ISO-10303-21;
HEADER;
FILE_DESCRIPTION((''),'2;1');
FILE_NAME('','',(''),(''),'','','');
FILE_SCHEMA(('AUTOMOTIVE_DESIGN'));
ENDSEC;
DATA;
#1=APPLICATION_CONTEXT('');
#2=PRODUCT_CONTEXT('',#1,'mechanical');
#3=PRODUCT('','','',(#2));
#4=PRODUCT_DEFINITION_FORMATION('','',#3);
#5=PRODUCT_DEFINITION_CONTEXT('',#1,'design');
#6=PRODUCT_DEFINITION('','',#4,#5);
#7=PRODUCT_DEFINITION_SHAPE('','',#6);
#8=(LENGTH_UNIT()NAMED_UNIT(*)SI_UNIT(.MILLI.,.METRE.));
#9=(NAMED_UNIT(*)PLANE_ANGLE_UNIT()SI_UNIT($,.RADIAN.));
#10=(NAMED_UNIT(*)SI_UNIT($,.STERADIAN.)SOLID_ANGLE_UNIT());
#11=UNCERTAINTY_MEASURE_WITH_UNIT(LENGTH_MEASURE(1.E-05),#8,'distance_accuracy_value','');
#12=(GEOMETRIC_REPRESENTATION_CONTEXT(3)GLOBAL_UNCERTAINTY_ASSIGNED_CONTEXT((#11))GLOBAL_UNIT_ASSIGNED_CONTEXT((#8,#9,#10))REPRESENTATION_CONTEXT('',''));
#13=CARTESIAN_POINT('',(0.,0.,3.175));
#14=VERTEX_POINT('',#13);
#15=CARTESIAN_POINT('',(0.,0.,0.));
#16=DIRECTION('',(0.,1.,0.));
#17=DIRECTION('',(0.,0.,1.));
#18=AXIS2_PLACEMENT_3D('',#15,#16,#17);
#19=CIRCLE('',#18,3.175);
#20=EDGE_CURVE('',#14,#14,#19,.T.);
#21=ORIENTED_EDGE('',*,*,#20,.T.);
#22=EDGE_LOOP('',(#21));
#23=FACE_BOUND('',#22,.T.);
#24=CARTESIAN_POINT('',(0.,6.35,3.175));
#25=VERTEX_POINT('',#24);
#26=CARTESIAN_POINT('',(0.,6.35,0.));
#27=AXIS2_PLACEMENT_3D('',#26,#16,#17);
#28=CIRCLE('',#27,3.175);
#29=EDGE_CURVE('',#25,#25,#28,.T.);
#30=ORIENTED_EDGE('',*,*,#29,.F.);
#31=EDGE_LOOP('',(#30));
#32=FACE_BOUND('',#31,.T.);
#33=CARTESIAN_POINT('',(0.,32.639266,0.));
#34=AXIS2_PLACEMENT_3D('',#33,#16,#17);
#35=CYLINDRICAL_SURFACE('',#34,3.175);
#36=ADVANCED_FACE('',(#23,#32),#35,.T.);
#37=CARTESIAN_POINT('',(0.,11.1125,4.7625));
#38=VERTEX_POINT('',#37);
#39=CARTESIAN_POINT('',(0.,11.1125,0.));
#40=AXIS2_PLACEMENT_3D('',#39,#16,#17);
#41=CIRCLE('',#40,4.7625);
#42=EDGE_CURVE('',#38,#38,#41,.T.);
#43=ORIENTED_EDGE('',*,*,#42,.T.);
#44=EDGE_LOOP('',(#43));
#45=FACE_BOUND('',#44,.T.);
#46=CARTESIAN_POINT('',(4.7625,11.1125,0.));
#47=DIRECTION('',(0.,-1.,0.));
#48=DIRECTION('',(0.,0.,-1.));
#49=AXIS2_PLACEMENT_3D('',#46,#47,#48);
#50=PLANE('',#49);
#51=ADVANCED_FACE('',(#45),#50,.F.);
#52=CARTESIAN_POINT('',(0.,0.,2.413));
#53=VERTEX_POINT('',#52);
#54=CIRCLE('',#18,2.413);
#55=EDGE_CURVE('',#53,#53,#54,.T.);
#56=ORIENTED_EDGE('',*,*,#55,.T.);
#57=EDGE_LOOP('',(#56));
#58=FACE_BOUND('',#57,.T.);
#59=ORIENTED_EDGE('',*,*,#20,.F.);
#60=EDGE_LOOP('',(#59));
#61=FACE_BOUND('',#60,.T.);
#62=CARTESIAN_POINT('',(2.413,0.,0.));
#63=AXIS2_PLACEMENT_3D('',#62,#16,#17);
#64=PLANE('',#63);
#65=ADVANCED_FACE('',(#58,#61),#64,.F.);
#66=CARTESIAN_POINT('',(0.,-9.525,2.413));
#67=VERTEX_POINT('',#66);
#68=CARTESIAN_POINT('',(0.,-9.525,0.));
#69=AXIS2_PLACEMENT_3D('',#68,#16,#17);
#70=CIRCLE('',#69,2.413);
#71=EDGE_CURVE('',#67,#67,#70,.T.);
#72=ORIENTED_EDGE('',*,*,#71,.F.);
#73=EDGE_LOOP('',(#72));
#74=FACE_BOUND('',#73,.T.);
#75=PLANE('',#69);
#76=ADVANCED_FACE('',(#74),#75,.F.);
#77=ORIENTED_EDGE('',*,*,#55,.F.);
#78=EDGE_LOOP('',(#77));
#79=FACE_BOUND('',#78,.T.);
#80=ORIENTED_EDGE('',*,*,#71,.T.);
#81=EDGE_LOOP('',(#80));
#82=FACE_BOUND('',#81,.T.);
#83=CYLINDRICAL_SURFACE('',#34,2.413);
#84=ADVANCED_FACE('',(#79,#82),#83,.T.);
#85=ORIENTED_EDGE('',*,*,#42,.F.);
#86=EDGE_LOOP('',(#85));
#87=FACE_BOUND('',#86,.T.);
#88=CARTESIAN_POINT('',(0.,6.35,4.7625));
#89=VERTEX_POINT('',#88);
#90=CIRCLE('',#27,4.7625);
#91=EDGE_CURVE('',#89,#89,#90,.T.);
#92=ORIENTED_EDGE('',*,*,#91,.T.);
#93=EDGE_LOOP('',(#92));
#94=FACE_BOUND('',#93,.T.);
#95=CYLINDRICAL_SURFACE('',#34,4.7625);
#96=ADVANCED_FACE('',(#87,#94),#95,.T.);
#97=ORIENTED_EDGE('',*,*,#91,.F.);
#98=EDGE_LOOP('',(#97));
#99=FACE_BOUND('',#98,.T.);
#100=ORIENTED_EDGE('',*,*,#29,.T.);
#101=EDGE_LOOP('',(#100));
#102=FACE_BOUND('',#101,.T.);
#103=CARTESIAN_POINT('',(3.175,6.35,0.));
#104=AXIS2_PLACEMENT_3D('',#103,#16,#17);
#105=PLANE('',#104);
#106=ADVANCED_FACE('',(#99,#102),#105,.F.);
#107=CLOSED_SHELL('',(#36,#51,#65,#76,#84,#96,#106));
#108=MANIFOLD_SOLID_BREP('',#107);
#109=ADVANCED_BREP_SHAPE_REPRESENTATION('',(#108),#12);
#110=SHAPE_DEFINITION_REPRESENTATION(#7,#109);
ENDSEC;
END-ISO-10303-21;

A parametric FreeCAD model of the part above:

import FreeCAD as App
import Part
import Sketcher
from FreeCAD import Vector
Q = App.Units.Quantity


def add_polygon(sketch, points):
    """Adds a closed chain of lines whose ends are joined by coincident constraints."""
    first, n = sketch.GeometryCount, len(points)
    for a, b in zip(points, points[1:] + points[:1]):
        sketch.addGeometry(Part.LineSegment(App.Vector(*a, 0), App.Vector(*b, 0)), False)
    for i in range(n):
        sketch.addConstraint(Sketcher.Constraint("Coincident", first + i, 2, first + (i + 1) % n, 1))

doc = App.newDocument("Part")
params = doc.addObject("Spreadsheet::Sheet", "Params")
for row, (alias, value) in enumerate([
    ("sketch1_width", "0.03 in"),
    ("sketch1_height", "0.25 in"),
    ("sketch1_width2", "0.095 in"),
    ("sketch1_width3", "0.0625 in"),
    ("sketch1_height2", "0.375 in"),
    ("revolution_angle", "360 deg"),
], start=1):
    params.set(f"A{row}", alias)
    params.set(f"B{row}", "=" + value)
    params.setAlias(f"B{row}", alias)

body = doc.addObject("PartDesign::Body", "Body")

# Sketch on XY plane
sketch1 = body.newObject("Sketcher::SketchObject", "Sketch")
sketch1.AttachmentSupport = (doc.getObject("XY_Plane"), [""])
sketch1.MapMode = "FlatFace"
add_polygon(sketch1, [(0, -9.525), (2.413, -9.525), (2.413, 0), (3.175, 0), (3.175, 6.35), (4.7625, 6.35), (4.7625, 11.1125), (0, 11.1125)])  # lines 0-7
sketch1.addConstraint([
    Sketcher.Constraint("Horizontal", 0),
    Sketcher.Constraint("Vertical", 1),
    Sketcher.Constraint("Horizontal", 2),
    Sketcher.Constraint("Vertical", 3),
    Sketcher.Constraint("Horizontal", 4),
    Sketcher.Constraint("Vertical", 5),
    Sketcher.Constraint("Horizontal", 6),
    Sketcher.Constraint("Vertical", 7),
    Sketcher.Constraint("PointOnObject", 1, 2, -1),
    Sketcher.Constraint("PointOnObject", 6, 2, -2),
    Sketcher.Constraint("Equal", 6, 5),
    Sketcher.Constraint("DistanceX", 2, 1, 2, 2, Q("0.03 in")),
    Sketcher.Constraint("DistanceY", 3, 1, 3, 2, Q("0.25 in")),
    Sketcher.Constraint("DistanceX", 0, 1, 0, 2, Q("0.095 in")),
    Sketcher.Constraint("DistanceX", 4, 1, 4, 2, Q("0.0625 in")),
    Sketcher.Constraint("DistanceY", 1, 1, 1, 2, Q("0.375 in")),
])
sketch1.setExpression("Constraints[19]", "Params.sketch1_width")
sketch1.setExpression("Constraints[20]", "Params.sketch1_height")
sketch1.setExpression("Constraints[21]", "Params.sketch1_width2")
sketch1.setExpression("Constraints[22]", "Params.sketch1_width3")
sketch1.setExpression("Constraints[23]", "Params.sketch1_height2")
revolution = body.newObject("PartDesign::Revolution", "Revolution")
revolution.Profile = sketch1
revolution.ReferenceAxis = (sketch1, ["V_Axis"])
revolution.setExpression("Angle", "Params.revolution_angle")

doc.recompute()
